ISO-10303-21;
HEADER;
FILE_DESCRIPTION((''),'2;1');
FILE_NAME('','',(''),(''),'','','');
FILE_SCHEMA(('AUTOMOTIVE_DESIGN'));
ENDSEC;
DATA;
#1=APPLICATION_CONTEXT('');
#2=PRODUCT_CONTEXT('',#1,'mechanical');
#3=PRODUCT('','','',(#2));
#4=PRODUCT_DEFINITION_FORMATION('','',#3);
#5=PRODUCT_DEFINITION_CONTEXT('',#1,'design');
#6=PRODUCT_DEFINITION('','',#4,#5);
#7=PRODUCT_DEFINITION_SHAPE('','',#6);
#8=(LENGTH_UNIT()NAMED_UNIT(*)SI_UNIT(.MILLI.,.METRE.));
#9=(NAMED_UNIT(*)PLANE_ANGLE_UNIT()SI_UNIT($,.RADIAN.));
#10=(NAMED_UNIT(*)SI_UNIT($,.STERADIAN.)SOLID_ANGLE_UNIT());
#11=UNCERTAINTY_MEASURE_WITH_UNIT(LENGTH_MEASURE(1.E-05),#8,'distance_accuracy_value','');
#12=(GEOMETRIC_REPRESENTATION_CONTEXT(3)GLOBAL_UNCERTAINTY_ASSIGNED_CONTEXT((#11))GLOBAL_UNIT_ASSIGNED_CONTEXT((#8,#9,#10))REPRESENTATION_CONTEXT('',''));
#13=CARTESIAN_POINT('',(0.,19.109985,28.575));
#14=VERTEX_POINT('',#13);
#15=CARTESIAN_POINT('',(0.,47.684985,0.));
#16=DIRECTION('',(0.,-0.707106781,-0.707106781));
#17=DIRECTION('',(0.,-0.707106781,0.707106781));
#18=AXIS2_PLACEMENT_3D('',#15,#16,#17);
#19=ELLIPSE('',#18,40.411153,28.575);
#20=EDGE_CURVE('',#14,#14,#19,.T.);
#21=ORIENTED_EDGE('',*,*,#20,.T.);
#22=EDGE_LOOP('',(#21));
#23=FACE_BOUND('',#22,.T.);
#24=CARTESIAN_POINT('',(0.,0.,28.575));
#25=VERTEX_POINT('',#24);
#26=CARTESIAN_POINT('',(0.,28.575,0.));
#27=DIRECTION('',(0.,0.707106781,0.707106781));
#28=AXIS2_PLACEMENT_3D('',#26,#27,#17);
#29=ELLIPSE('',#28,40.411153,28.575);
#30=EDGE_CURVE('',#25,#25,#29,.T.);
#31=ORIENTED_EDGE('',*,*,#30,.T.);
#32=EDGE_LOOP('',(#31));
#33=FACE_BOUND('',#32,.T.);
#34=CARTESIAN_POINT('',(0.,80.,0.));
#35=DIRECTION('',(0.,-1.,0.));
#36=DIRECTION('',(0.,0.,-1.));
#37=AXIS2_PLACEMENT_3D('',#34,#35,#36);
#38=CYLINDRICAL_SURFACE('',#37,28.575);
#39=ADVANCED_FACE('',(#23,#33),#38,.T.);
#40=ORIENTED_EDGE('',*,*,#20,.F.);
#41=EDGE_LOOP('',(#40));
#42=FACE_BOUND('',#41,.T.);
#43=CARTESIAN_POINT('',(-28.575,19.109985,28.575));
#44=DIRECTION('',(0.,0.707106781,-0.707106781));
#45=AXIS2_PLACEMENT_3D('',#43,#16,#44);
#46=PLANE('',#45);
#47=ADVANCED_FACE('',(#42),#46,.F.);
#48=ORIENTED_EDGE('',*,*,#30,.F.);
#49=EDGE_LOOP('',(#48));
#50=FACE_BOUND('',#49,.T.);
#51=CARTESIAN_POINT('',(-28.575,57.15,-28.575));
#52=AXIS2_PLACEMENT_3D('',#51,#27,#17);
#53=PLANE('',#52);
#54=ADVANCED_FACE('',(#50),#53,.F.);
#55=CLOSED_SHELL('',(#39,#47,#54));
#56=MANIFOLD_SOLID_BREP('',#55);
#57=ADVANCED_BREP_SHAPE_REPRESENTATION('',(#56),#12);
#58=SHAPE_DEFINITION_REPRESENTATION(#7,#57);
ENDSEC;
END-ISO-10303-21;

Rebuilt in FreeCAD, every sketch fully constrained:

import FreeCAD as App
import Part
import Sketcher

V = App.Vector

doc = App.newDocument("Part")
body = doc.addObject("PartDesign::Body", "Body")

# Sketch on XZ plane
sketch1 = body.newObject("Sketcher::SketchObject", "Sketch")
sketch1.AttachmentSupport = (doc.getObject("XZ_Plane"), [""])
sketch1.MapMode = "FlatFace"
sketch1.addGeometry(Part.Circle(V(0, 0, 0), V(0, 0, 1), 28.575), False)
sketch1.addConstraint([
    Sketcher.Constraint("Coincident", 0, 3, -1, 1),
    Sketcher.Constraint("Diameter", 0, 57.15),
])
pad1 = body.newObject("PartDesign::Pad", "Pad")
pad1.Profile = sketch1
pad1.Length = 80
pad1.Reversed = True

# Sketch on YZ plane
sketch2 = body.newObject("Sketcher::SketchObject", "Sketch001")
sketch2.AttachmentSupport = (doc.getObject("YZ_Plane"), [""])
sketch2.MapMode = "FlatFace"
sketch2.addGeometry([
    Part.LineSegment(V(80, -28.575, 0), V(80, 28.575, 0)),  # 0
    Part.LineSegment(V(80, 28.575, 0), V(19.109985, 28.575, 0)),  # 1
    Part.LineSegment(V(19.109985, 28.575, 0), V(76.259985, -28.575, 0)),  # 2
    Part.LineSegment(V(76.259985, -28.575, 0), V(80, -28.575, 0)),  # 3
    Part.LineSegment(V(0, -28.575, 0), V(57.15, -28.575, 0)),  # 4
    Part.LineSegment(V(57.15, -28.575, 0), V(0, 28.575, 0)),  # 5
    Part.LineSegment(V(0, 28.575, 0), V(0, -28.575, 0)),  # 6
], False)
sketch2.addConstraint([
    Sketcher.Constraint("Coincident", 0, 2, 1, 1),
    Sketcher.Constraint("Coincident", 1, 2, 2, 1),
    Sketcher.Constraint("Coincident", 2, 2, 3, 1),
    Sketcher.Constraint("Coincident", 3, 2, 0, 1),
    Sketcher.Constraint("Coincident", 4, 2, 5, 1),
    Sketcher.Constraint("Coincident", 5, 2, 6, 1),
    Sketcher.Constraint("Coincident", 6, 2, 4, 1),
    Sketcher.Constraint("Vertical", 0),
    Sketcher.Constraint("Horizontal", 1),
    Sketcher.Constraint("Horizontal", 3),
    Sketcher.Constraint("Horizontal", 4),
    Sketcher.Constraint("Vertical", 6),
    Sketcher.Constraint("Symmetric", 5, 2, 6, 2, -1, 1),
    Sketcher.Constraint("Parallel", 2, 5),
    Sketcher.Constraint("Horizontal", 3, 2, 4, 2),
    Sketcher.Constraint("Horizontal", 1, 2, 5, 2),
    Sketcher.Constraint("Equal", 4, 0),
    Sketcher.Constraint("DistanceX", -1, 1, 0, 2, 80.0),
    Sketcher.Constraint("DistanceX", 4, 1, 4, 2, 57.15),
    Sketcher.Constraint("DistanceX", 1, 2, 1, 1, 60.890015),
])
pocket1 = body.newObject("PartDesign::Pocket", "Pocket")
pocket1.Profile = sketch2
pocket1.Type = "ThroughAll"
pocket1.Midplane = True

doc.recompute()
